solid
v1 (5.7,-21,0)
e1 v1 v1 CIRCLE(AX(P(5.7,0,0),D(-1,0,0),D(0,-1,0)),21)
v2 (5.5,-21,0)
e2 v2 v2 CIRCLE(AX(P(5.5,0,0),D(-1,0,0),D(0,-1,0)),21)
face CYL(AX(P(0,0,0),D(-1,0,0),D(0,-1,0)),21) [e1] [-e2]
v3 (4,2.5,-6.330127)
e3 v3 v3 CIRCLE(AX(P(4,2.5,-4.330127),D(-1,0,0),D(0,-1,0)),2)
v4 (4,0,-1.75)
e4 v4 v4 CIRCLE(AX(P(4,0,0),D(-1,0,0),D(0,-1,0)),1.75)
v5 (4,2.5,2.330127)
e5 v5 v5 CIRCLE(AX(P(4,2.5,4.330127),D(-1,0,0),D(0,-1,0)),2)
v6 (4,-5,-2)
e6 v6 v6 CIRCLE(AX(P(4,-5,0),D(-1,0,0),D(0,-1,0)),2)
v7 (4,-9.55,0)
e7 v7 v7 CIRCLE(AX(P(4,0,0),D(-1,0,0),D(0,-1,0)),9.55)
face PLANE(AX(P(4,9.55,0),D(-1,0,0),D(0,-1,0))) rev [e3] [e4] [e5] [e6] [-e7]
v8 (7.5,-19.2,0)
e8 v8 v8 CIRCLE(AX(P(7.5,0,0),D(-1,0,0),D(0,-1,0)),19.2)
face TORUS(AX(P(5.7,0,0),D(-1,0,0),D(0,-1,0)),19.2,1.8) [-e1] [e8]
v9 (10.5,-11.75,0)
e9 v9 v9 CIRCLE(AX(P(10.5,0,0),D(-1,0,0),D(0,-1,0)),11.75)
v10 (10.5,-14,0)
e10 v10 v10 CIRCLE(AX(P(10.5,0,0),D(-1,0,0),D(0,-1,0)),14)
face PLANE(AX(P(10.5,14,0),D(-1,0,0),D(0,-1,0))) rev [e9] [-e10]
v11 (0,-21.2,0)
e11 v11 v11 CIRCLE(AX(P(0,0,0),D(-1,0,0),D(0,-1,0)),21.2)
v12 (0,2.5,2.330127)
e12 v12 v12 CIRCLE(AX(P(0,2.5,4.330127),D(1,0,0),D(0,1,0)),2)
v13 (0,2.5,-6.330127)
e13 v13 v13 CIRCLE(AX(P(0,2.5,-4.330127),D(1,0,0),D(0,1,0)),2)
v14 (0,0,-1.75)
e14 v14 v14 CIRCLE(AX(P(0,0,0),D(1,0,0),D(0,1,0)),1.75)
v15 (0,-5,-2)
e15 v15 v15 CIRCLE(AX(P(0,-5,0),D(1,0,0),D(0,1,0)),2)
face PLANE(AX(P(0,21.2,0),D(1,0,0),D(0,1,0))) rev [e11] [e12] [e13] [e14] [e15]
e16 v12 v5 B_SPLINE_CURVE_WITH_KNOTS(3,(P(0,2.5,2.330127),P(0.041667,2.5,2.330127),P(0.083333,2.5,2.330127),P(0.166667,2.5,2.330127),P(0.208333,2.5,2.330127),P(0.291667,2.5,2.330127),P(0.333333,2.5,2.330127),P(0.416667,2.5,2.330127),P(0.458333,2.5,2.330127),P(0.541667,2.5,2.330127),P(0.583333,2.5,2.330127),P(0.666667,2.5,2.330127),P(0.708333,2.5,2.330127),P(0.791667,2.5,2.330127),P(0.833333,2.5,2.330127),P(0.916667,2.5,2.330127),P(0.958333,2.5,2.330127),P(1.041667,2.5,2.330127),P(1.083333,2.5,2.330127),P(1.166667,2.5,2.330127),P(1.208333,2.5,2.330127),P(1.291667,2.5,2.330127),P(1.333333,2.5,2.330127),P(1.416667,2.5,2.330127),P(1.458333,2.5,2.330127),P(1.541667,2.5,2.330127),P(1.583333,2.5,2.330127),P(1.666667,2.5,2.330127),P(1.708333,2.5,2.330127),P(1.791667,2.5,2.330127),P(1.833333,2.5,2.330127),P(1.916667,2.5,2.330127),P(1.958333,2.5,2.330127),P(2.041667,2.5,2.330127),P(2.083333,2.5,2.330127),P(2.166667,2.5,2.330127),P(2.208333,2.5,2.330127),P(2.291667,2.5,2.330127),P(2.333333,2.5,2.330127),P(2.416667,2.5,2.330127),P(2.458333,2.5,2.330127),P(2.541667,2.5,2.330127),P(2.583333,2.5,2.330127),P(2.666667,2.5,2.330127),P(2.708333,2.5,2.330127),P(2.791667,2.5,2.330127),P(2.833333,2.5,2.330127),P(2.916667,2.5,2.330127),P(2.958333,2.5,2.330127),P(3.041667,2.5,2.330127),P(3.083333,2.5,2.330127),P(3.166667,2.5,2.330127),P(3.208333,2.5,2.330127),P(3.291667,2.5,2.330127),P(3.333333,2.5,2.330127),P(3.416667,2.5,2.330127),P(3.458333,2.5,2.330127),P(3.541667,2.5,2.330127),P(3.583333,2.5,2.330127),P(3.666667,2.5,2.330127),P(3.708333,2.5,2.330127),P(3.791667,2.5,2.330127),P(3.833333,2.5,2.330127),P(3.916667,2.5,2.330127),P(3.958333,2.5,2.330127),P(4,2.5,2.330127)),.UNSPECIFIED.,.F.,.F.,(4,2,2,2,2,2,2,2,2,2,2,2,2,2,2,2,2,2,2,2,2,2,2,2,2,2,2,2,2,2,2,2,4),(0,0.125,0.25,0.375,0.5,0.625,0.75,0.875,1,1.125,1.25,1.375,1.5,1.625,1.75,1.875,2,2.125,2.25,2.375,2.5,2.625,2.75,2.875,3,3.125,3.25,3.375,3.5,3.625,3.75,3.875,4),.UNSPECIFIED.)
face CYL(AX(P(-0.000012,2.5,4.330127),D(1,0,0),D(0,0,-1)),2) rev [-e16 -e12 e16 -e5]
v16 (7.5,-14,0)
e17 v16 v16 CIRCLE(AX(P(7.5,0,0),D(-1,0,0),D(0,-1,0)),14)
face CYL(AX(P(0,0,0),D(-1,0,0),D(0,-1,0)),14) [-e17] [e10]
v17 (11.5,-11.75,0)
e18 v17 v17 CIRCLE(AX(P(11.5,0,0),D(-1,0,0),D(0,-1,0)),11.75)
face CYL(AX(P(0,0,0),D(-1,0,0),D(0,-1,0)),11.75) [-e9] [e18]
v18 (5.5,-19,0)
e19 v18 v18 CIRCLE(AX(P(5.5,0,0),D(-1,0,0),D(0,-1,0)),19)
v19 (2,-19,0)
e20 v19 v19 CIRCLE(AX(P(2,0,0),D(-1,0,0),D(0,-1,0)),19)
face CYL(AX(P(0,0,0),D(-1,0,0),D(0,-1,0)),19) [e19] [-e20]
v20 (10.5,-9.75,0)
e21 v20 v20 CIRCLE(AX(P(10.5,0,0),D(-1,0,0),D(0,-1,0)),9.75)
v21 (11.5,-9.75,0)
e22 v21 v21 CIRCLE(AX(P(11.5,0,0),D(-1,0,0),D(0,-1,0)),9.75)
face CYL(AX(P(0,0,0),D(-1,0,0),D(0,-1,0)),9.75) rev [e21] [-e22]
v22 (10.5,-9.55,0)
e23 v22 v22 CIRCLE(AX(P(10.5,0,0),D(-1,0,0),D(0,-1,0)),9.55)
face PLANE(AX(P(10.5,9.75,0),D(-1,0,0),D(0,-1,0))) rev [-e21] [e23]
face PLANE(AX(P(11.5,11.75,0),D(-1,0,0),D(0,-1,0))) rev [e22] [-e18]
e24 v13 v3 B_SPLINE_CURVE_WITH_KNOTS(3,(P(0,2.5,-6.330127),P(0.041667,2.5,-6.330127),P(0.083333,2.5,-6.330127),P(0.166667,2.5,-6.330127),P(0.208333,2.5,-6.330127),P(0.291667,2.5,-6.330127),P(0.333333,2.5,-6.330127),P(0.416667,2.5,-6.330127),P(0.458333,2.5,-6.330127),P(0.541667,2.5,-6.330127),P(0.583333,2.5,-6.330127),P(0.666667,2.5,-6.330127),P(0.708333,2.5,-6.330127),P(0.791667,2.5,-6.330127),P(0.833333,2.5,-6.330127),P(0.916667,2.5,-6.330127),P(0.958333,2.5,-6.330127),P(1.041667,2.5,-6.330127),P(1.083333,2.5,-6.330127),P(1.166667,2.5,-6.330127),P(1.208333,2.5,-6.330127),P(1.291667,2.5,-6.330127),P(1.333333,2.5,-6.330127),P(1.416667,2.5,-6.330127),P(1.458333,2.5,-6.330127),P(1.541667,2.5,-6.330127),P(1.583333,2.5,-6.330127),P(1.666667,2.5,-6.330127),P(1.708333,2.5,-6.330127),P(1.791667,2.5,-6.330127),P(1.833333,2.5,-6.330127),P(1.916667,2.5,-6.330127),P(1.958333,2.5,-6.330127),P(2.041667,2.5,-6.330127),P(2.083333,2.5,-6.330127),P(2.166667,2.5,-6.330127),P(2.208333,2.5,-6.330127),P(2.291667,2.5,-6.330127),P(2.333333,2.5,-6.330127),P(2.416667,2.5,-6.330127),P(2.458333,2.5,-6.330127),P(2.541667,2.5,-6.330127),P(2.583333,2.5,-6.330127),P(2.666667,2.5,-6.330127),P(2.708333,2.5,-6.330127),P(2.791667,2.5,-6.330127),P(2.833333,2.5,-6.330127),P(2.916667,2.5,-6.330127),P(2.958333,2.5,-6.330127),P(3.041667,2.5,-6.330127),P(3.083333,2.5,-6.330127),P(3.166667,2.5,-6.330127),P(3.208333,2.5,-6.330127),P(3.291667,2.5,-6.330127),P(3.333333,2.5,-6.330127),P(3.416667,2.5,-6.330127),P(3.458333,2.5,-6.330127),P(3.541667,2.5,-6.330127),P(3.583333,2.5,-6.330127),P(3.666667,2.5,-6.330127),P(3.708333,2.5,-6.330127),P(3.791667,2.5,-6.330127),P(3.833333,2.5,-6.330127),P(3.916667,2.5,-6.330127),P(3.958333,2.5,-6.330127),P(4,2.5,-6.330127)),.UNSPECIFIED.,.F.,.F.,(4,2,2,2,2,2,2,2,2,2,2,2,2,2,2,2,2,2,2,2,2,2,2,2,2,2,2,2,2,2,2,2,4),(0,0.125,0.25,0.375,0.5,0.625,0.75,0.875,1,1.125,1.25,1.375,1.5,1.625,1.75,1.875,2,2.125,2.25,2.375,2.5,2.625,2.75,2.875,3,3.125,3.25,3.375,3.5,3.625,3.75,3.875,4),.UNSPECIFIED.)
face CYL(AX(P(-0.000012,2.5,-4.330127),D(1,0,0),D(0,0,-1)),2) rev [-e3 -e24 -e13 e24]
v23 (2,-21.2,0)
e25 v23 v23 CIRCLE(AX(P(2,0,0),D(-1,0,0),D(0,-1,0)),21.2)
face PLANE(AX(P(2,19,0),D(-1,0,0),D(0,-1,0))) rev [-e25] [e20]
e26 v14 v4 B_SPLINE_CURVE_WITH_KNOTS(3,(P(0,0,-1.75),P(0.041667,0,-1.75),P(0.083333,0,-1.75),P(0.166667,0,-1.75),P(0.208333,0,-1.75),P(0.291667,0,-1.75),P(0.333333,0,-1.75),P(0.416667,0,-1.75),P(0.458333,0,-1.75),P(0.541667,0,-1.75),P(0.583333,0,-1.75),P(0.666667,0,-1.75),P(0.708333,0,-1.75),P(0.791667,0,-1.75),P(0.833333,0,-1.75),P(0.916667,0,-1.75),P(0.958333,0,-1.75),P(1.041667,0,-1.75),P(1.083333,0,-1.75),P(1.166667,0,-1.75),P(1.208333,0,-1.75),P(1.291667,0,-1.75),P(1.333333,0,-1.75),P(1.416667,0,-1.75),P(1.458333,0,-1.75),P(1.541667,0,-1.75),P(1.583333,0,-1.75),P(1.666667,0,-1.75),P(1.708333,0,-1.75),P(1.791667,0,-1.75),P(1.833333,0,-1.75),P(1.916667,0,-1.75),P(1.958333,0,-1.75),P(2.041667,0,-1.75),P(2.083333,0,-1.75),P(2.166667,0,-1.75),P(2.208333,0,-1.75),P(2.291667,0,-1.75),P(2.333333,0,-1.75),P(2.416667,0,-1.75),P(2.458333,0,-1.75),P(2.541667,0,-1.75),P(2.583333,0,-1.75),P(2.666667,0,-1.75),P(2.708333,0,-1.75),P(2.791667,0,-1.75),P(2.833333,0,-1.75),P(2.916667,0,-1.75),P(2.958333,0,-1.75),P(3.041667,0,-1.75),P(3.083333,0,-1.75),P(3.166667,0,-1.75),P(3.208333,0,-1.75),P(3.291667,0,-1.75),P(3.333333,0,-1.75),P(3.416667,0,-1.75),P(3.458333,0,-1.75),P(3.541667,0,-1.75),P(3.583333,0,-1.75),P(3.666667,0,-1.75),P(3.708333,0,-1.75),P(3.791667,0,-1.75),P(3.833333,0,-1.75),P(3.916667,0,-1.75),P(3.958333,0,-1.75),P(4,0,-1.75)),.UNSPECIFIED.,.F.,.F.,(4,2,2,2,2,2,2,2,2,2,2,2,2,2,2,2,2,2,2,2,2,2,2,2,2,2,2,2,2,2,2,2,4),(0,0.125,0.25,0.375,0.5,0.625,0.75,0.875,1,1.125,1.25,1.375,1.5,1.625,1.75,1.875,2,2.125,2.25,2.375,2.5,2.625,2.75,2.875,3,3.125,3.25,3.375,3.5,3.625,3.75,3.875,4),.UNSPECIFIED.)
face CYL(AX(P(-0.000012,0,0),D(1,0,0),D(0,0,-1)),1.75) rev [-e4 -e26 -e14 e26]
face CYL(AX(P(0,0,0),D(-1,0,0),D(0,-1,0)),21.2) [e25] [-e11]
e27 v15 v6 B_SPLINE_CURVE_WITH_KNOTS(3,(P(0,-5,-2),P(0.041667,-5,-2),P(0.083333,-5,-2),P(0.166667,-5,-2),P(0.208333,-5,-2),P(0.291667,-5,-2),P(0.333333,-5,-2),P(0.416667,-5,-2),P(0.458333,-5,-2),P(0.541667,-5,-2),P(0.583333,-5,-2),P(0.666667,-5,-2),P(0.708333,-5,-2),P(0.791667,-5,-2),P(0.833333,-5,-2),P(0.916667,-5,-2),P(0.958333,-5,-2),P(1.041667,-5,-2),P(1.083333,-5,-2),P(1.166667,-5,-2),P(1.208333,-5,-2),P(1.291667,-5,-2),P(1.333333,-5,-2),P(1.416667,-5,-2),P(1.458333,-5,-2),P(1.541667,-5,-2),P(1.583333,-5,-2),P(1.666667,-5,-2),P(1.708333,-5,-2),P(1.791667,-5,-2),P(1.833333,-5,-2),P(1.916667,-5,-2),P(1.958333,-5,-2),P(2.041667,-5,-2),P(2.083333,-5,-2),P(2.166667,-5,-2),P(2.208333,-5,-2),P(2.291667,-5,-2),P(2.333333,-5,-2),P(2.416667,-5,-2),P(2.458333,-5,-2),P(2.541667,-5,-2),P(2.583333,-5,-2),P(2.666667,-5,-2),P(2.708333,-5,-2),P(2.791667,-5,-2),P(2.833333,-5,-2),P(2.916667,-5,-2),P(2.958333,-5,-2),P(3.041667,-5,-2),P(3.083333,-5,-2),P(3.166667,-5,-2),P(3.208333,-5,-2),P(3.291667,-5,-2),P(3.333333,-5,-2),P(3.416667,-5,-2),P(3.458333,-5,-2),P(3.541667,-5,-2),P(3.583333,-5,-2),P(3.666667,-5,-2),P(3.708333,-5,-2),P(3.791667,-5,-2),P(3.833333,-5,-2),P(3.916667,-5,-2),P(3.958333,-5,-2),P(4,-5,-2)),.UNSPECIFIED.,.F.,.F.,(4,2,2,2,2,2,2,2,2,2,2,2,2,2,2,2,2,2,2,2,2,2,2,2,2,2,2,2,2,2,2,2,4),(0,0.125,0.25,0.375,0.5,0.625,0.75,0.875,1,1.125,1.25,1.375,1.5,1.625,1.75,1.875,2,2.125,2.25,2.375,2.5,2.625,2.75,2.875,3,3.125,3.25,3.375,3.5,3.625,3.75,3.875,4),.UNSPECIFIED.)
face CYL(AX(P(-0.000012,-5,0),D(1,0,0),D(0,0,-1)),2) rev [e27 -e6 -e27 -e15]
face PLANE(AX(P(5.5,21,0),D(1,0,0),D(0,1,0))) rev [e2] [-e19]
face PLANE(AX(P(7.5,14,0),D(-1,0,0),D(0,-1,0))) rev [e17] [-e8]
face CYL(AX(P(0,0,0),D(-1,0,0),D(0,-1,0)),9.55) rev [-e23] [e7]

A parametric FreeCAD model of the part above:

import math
import FreeCAD as App
import Part
import Sketcher

V = App.Vector
Q = App.Units.Quantity

doc = App.newDocument("Part")
body = doc.addObject("PartDesign::Body", "Body")

sketch1 = doc.addObject("Sketcher::SketchObject", "Sketch")
body.addObject(sketch1)
sketch1.AttachmentSupport = (doc.XY_Plane, [""])
sketch1.MapMode = "FlatFace"
sketch1.addGeometry(Part.LineSegment(V(10.5, 14, 0), V(7.5, 14, 0)), False)
sketch1.addGeometry(Part.LineSegment(V(7.5, 14, 0), V(7.5, 19.2, 0)), False)
sketch1.addGeometry(Part.ArcOfCircle(Part.Circle(V(5.7, 19.2, 0), V(0, 0, 1), 1.8), math.radians(0), math.radians(90)), False)
sketch1.addGeometry(Part.LineSegment(V(5.7, 21, 0), V(5.5, 21, 0)), False)
sketch1.addGeometry(Part.LineSegment(V(5.5, 21, 0), V(5.5, 19, 0)), False)
sketch1.addGeometry(Part.LineSegment(V(5.5, 19, 0), V(2, 19, 0)), False)
sketch1.addGeometry(Part.LineSegment(V(2, 19, 0), V(2, 21.2, 0)), False)
sketch1.addGeometry(Part.LineSegment(V(2, 21.2, 0), V(0, 21.2, 0)), False)
sketch1.addGeometry(Part.LineSegment(V(0, 21.2, 0), V(0, 0, 0)), False)
sketch1.addGeometry(Part.LineSegment(V(0, 0, 0), V(4, 0, 0)), False)
sketch1.addGeometry(Part.LineSegment(V(4, 0, 0), V(4, 9.55, 0)), False)
sketch1.addGeometry(Part.LineSegment(V(4, 9.55, 0), V(10.5, 9.55, 0)), False)
sketch1.addGeometry(Part.LineSegment(V(10.5, 9.55, 0), V(10.5, 9.75, 0)), False)
sketch1.addGeometry(Part.LineSegment(V(10.5, 9.75, 0), V(11.5, 9.75, 0)), False)
sketch1.addGeometry(Part.LineSegment(V(11.5, 9.75, 0), V(11.5, 11.75, 0)), False)
sketch1.addGeometry(Part.LineSegment(V(11.5, 11.75, 0), V(10.5, 11.75, 0)), False)
sketch1.addGeometry(Part.LineSegment(V(10.5, 11.75, 0), V(10.5, 14, 0)), False)
sketch1.addConstraint(Sketcher.Constraint("Coincident", 0, 2, 1, 1))
sketch1.addConstraint(Sketcher.Constraint("Tangent", 1, 2, 2, 1))
sketch1.addConstraint(Sketcher.Constraint("Tangent", 2, 2, 3, 1))
sketch1.addConstraint(Sketcher.Constraint("Coincident", 3, 2, 4, 1))
sketch1.addConstraint(Sketcher.Constraint("Coincident", 4, 2, 5, 1))
sketch1.addConstraint(Sketcher.Constraint("Coincident", 5, 2, 6, 1))
sketch1.addConstraint(Sketcher.Constraint("Coincident", 6, 2, 7, 1))
sketch1.addConstraint(Sketcher.Constraint("Coincident", 7, 2, 8, 1))
sketch1.addConstraint(Sketcher.Constraint("Coincident", 8, 2, 9, 1))
sketch1.addConstraint(Sketcher.Constraint("Coincident", 9, 2, 10, 1))
sketch1.addConstraint(Sketcher.Constraint("Coincident", 10, 2, 11, 1))
sketch1.addConstraint(Sketcher.Constraint("Coincident", 11, 2, 12, 1))
sketch1.addConstraint(Sketcher.Constraint("Coincident", 12, 2, 13, 1))
sketch1.addConstraint(Sketcher.Constraint("Coincident", 13, 2, 14, 1))
sketch1.addConstraint(Sketcher.Constraint("Coincident", 14, 2, 15, 1))
sketch1.addConstraint(Sketcher.Constraint("Coincident", 15, 2, 16, 1))
sketch1.addConstraint(Sketcher.Constraint("Coincident", 16, 2, 0, 1))
sketch1.addConstraint(Sketcher.Constraint("Horizontal", 0))
sketch1.addConstraint(Sketcher.Constraint("Vertical", 1))
sketch1.addConstraint(Sketcher.Constraint("Horizontal", 3))
sketch1.addConstraint(Sketcher.Constraint("Vertical", 4))
sketch1.addConstraint(Sketcher.Constraint("Horizontal", 5))
sketch1.addConstraint(Sketcher.Constraint("Vertical", 6))
sketch1.addConstraint(Sketcher.Constraint("Horizontal", 7))
sketch1.addConstraint(Sketcher.Constraint("Vertical", 8))
sketch1.addConstraint(Sketcher.Constraint("Horizontal", 9))
sketch1.addConstraint(Sketcher.Constraint("Vertical", 10))
sketch1.addConstraint(Sketcher.Constraint("Horizontal", 11))
sketch1.addConstraint(Sketcher.Constraint("Vertical", 12))
sketch1.addConstraint(Sketcher.Constraint("Horizontal", 13))
sketch1.addConstraint(Sketcher.Constraint("Vertical", 14))
sketch1.addConstraint(Sketcher.Constraint("Horizontal", 15))
sketch1.addConstraint(Sketcher.Constraint("Vertical", 16))
sketch1.addConstraint(Sketcher.Constraint("Coincident", 8, 2, -1, 1))
sketch1.addConstraint(Sketcher.Constraint("Vertical", 12, 2, 15, 2))
sketch1.addConstraint(Sketcher.Constraint("Equal", 7, 4))
sketch1.addConstraint(Sketcher.Constraint("Equal", 3, 12))
sketch1.addConstraint(Sketcher.Constraint("Equal", 4, 14))
sketch1.addConstraint(Sketcher.Constraint("Radius", 2, Q("1.8 mm")))
sketch1.addConstraint(Sketcher.Constraint("DistanceX", 0, 2, 0, 1, Q("3 mm")))
sketch1.addConstraint(Sketcher.Constraint("DistanceX", 7, 2, 7, 1, Q("2 mm")))
sketch1.addConstraint(Sketcher.Constraint("DistanceX", 9, 1, 9, 2, Q("4 mm")))
sketch1.addConstraint(Sketcher.Constraint("DistanceX", 13, 1, 13, 2, Q("1 mm")))
sketch1.addConstraint(Sketcher.Constraint("DistanceX", 3, 2, 3, 1, Q("0.2 mm")))
sketch1.addConstraint(Sketcher.Constraint("DistanceX", 5, 2, 5, 1, Q("3.5 mm")))
sketch1.addConstraint(Sketcher.Constraint("DistanceY", 1, 1, 1, 2, Q("5.2 mm")))
sketch1.addConstraint(Sketcher.Constraint("DistanceY", 6, 1, 6, 2, Q("2.2 mm")))
sketch1.addConstraint(Sketcher.Constraint("DistanceY", 8, 2, 8, 1, Q("21.2 mm")))
sketch1.addConstraint(Sketcher.Constraint("DistanceY", 10, 1, 10, 2, Q("9.55 mm")))
revolution = doc.addObject("PartDesign::Revolution", "Revolution")
body.addObject(revolution)
revolution.Profile = sketch1
revolution.ReferenceAxis = (sketch1, ["H_Axis"])
revolution.Angle = 360

sketch2 = doc.addObject("Sketcher::SketchObject", "Sketch001")
body.addObject(sketch2)
sketch2.AttachmentSupport = (doc.YZ_Plane, [""])
sketch2.MapMode = "FlatFace"
sketch2.addGeometry(Part.Circle(V(0, 0, 0), V(0, 0, 1), 1.8), False)
sketch2.addGeometry(Part.Circle(V(-5, 0, 0), V(0, 0, 1), 2), False)
sketch2.addGeometry(Part.Circle(V(2.5, 4.3, 0), V(0, 0, 1), 2), False)
sketch2.addGeometry(Part.Circle(V(2.5, -4.3, 0), V(0, 0, 1), 2), False)
sketch2.addConstraint(Sketcher.Constraint("Coincident", 0, 3, -1, 1))
sketch2.addConstraint(Sketcher.Constraint("Equal", 1, 2))
sketch2.addConstraint(Sketcher.Constraint("Equal", 2, 3))
sketch2.addConstraint(Sketcher.Constraint("Symmetric", 2, 3, 3, 3, -1))
sketch2.addConstraint(Sketcher.Constraint("PointOnObject", 1, 3, -1))
sketch2.addConstraint(Sketcher.Constraint("Diameter", 1, Q("4 mm")))
sketch2.addConstraint(Sketcher.Constraint("Diameter", 0, Q("3.5 mm")))
sketch2.addConstraint(Sketcher.Constraint("DistanceX", 1, 3, -1, 1, Q("5 mm")))
sketch2.addConstraint(Sketcher.Constraint("DistanceX", -1, 1, 2, 3, Q("2.5 mm")))
sketch2.addConstraint(Sketcher.Constraint("DistanceY", -1, 1, 2, 3, Q("4.330127 mm")))
pocket1 = doc.addObject("PartDesign::Pocket", "Pocket")
body.addObject(pocket1)
pocket1.Profile = sketch2
pocket1.Type = "ThroughAll"
pocket1.Midplane = True

doc.recompute()
